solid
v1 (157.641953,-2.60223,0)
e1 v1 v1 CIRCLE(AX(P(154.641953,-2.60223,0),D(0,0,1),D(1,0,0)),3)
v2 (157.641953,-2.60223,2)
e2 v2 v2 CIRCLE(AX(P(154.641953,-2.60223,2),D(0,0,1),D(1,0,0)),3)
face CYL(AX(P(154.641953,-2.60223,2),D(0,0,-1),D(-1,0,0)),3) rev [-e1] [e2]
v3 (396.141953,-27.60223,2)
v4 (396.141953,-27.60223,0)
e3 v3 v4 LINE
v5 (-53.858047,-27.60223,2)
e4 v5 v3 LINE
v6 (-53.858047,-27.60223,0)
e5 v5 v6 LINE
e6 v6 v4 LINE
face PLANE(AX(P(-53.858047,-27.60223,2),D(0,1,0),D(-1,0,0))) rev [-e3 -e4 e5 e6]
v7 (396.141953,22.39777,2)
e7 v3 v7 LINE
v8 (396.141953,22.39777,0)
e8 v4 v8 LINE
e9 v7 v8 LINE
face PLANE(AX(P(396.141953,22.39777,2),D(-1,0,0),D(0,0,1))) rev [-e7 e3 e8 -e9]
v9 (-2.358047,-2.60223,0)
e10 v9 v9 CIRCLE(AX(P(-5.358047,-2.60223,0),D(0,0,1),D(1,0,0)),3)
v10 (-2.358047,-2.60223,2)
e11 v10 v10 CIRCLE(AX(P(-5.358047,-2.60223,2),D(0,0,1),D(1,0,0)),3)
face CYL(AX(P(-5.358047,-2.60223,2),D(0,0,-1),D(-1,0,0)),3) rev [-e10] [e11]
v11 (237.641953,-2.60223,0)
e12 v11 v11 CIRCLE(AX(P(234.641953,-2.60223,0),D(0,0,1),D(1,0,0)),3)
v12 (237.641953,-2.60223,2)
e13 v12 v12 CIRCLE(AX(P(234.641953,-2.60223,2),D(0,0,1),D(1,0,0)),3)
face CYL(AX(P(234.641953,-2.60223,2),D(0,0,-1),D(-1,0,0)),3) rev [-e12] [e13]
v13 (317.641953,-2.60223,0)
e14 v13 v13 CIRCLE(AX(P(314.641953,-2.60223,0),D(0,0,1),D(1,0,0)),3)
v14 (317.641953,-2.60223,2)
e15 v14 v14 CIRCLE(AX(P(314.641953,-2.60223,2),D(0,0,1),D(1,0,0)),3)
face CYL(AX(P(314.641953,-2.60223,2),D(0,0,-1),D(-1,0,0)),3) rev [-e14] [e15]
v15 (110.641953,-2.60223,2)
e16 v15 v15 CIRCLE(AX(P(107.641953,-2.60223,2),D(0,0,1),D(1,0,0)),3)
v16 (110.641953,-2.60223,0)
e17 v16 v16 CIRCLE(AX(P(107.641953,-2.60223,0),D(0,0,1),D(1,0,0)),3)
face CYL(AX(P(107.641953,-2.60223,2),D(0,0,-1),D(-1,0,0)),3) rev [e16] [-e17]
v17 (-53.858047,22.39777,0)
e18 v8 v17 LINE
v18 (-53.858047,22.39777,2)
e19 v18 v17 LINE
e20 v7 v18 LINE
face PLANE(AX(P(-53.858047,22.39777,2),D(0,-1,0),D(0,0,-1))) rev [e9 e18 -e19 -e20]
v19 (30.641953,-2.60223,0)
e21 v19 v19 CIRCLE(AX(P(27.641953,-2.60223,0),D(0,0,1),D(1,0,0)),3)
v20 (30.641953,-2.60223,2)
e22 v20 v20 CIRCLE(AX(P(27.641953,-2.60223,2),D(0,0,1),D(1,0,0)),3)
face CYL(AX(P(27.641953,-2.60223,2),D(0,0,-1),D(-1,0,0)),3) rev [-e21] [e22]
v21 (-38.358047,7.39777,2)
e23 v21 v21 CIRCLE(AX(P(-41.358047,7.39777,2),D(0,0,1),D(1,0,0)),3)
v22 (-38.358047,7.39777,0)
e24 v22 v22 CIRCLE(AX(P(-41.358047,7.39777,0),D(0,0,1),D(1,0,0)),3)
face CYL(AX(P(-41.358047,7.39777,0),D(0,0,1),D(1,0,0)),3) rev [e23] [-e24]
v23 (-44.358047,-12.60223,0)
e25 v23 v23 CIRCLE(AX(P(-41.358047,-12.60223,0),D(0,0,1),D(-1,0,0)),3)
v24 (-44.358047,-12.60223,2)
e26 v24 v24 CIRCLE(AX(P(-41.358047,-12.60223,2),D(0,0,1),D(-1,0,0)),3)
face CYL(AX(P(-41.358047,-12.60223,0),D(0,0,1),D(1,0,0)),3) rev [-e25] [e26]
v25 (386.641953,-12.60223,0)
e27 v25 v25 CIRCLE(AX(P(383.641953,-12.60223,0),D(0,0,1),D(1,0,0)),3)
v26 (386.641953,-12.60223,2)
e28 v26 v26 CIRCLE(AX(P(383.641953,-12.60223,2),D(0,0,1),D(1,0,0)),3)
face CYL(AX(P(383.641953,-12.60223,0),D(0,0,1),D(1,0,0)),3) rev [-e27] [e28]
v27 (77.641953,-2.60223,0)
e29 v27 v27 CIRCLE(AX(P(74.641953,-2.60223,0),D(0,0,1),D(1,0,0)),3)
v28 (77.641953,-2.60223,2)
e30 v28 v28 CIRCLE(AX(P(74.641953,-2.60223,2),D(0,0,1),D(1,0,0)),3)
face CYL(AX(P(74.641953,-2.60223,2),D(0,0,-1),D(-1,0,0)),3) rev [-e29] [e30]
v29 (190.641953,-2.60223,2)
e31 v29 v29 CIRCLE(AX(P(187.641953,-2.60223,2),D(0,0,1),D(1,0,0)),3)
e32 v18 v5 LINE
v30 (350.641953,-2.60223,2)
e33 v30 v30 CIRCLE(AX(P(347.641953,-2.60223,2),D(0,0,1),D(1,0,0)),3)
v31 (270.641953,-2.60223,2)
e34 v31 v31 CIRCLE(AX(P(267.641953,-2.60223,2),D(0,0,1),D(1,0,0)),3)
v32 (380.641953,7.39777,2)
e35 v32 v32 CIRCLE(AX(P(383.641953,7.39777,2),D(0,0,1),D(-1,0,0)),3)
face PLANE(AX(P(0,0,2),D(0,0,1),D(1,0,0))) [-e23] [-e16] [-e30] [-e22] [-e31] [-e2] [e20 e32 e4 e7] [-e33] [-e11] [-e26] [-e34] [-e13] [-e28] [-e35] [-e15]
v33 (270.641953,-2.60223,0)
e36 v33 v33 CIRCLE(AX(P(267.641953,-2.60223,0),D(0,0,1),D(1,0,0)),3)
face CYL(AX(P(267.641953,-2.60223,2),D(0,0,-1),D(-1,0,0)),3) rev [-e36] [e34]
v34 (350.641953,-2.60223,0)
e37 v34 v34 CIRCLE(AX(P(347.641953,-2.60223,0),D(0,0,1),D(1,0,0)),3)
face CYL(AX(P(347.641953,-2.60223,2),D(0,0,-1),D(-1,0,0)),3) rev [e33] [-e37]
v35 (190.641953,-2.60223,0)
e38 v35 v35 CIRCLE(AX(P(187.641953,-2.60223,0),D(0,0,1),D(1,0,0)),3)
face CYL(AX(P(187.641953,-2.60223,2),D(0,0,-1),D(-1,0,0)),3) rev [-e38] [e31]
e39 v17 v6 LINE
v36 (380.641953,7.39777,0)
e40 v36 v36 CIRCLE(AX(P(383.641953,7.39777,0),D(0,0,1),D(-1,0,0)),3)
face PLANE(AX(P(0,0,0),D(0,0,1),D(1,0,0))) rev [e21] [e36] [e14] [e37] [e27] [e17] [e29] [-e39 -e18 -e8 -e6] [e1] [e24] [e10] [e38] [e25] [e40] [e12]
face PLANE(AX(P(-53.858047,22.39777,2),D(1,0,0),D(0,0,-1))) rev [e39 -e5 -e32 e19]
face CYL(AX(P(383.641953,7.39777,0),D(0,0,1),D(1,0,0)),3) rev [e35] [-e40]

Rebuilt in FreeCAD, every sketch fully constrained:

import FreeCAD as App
import Part
import Sketcher

V = App.Vector
Q = App.Units.Quantity


def add_polygon(sketch, points):
    """Adds a closed chain of lines whose ends are joined by coincident constraints."""
    first, n = sketch.GeometryCount, len(points)
    for a, b in zip(points, points[1:] + points[:1]):
        sketch.addGeometry(Part.LineSegment(App.Vector(*a, 0), App.Vector(*b, 0)), False)
    for i in range(n):
        sketch.addConstraint(Sketcher.Constraint("Coincident", first + i, 2, first + (i + 1) % n, 1))

doc = App.newDocument("Part")
body = doc.addObject("PartDesign::Body", "Body")

sketch1 = body.newObject("Sketcher::SketchObject", "Sketch")
sketch1.AttachmentSupport = (doc.getObject("XY_Plane"), [""])
sketch1.MapMode = "FlatFace"
add_polygon(sketch1, [(-53.9, 22.4), (-53.9, -27.6), (396.1, -27.6), (396.1, 22.4)])
sketch1.addGeometry(Part.Circle(V(-5.4, -2.6, 0), V(0, 0, 1), 3), False)
sketch1.addGeometry(Part.Circle(V(27.6, -2.6, 0), V(0, 0, 1), 3), False)
sketch1.addGeometry(Part.Circle(V(74.6, -2.6, 0), V(0, 0, 1), 3), False)
sketch1.addGeometry(Part.Circle(V(107.6, -2.6, 0), V(0, 0, 1), 3), False)
sketch1.addGeometry(Part.Circle(V(154.6, -2.6, 0), V(0, 0, 1), 3), False)
sketch1.addGeometry(Part.Circle(V(187.6, -2.6, 0), V(0, 0, 1), 3), False)
sketch1.addGeometry(Part.Circle(V(234.6, -2.6, 0), V(0, 0, 1), 3), False)
sketch1.addGeometry(Part.Circle(V(267.6, -2.6, 0), V(0, 0, 1), 3), False)
sketch1.addGeometry(Part.Circle(V(314.6, -2.6, 0), V(0, 0, 1), 3), False)
sketch1.addGeometry(Part.Circle(V(347.6, -2.6, 0), V(0, 0, 1), 3), False)
sketch1.addConstraint([
    Sketcher.Constraint("Vertical", 0),
    Sketcher.Constraint("Horizontal", 1),
    Sketcher.Constraint("Vertical", 2),
    Sketcher.Constraint("Horizontal", 3),
    Sketcher.Constraint("Equal", 4, 5),
    Sketcher.Constraint("Equal", 5, 6),
    Sketcher.Constraint("Equal", 6, 7),
    Sketcher.Constraint("Equal", 7, 8),
    Sketcher.Constraint("Equal", 8, 9),
    Sketcher.Constraint("Equal", 9, 10),
    Sketcher.Constraint("Equal", 10, 11),
    Sketcher.Constraint("Equal", 11, 12),
    Sketcher.Constraint("Equal", 12, 13),
    Sketcher.Constraint("Horizontal", 4, 3, 5, 3),
    Sketcher.Constraint("Horizontal", 5, 3, 6, 3),
    Sketcher.Constraint("Horizontal", 6, 3, 7, 3),
    Sketcher.Constraint("Horizontal", 7, 3, 8, 3),
    Sketcher.Constraint("Horizontal", 8, 3, 9, 3),
    Sketcher.Constraint("Horizontal", 9, 3, 10, 3),
    Sketcher.Constraint("Horizontal", 10, 3, 11, 3),
    Sketcher.Constraint("Horizontal", 11, 3, 12, 3),
    Sketcher.Constraint("Horizontal", 12, 3, 13, 3),
    Sketcher.Constraint("Diameter", 4, Q("6 mm")),
    Sketcher.Constraint("DistanceX", 1, 1, 1, 2, Q("450 mm")),
    Sketcher.Constraint("DistanceY", 0, 2, 0, 1, Q("50 mm")),
    Sketcher.Constraint("DistanceX", 4, 3, 5, 3, Q("33 mm")),
    Sketcher.Constraint("DistanceX", 5, 3, 6, 3, Q("47 mm")),
    Sketcher.Constraint("DistanceX", 6, 3, 7, 3, Q("33 mm")),
    Sketcher.Constraint("DistanceX", 7, 3, 8, 3, Q("47 mm")),
    Sketcher.Constraint("DistanceX", 8, 3, 9, 3, Q("33 mm")),
    Sketcher.Constraint("DistanceX", 9, 3, 10, 3, Q("47 mm")),
    Sketcher.Constraint("DistanceX", 10, 3, 11, 3, Q("33 mm")),
    Sketcher.Constraint("DistanceX", 11, 3, 12, 3, Q("47 mm")),
    Sketcher.Constraint("DistanceX", 12, 3, 13, 3, Q("33 mm")),
    Sketcher.Constraint("DistanceY", 0, 2, 4, 3, Q("25 mm")),
    Sketcher.Constraint("DistanceX", 0, 2, 4, 3, Q("48.5 mm")),
    Sketcher.Constraint("DistanceY", 4, 3, -1, 1, Q("2.60223 mm")),
    Sketcher.Constraint("DistanceX", 4, 3, -1, 1, Q("5.358047 mm")),
])
pad1 = body.newObject("PartDesign::Pad", "Pad")
pad1.Profile = sketch1
pad1.Length = 2

sketch2 = body.newObject("Sketcher::SketchObject", "Sketch001")
sketch2.AttachmentSupport = (doc.getObject("XY_Plane"), [""])
sketch2.MapMode = "FlatFace"
sketch2.AttachmentOffset = App.Placement(V(0, 0, 2), App.Rotation())
sketch2.addGeometry([
    Part.Circle(V(-41.4, 7.4, 0), V(0, 0, 1), 3),
    Part.Circle(V(-41.4, -12.6, 0), V(0, 0, 1), 3),
    Part.Circle(V(383.6, -12.6, 0), V(0, 0, 1), 3),
    Part.Circle(V(383.6, 7.4, 0), V(0, 0, 1), 3),
], False)
sketch2.addConstraint([
    Sketcher.Constraint("Equal", 0, 1),
    Sketcher.Constraint("Equal", 1, 2),
    Sketcher.Constraint("Equal", 2, 3),
    Sketcher.Constraint("Horizontal", 1, 3, 2, 3),
    Sketcher.Constraint("Horizontal", 0, 3, 3, 3),
    Sketcher.Constraint("Vertical", 0, 3, 1, 3),
    Sketcher.Constraint("Vertical", 2, 3, 3, 3),
    Sketcher.Constraint("Diameter", 0, Q("6 mm")),
    Sketcher.Constraint("DistanceY", 1, 3, 0, 3, Q("20 mm")),
    Sketcher.Constraint("DistanceX", 1, 3, 2, 3, Q("425 mm")),
    Sketcher.Constraint("DistanceY", -1, 1, 0, 3, Q("7.39777 mm")),
    Sketcher.Constraint("DistanceX", 0, 3, -1, 1, Q("41.358047 mm")),
])
pocket1 = body.newObject("PartDesign::Pocket", "Pocket")
pocket1.Profile = sketch2
pocket1.Type = "ThroughAll"

doc.recompute()
